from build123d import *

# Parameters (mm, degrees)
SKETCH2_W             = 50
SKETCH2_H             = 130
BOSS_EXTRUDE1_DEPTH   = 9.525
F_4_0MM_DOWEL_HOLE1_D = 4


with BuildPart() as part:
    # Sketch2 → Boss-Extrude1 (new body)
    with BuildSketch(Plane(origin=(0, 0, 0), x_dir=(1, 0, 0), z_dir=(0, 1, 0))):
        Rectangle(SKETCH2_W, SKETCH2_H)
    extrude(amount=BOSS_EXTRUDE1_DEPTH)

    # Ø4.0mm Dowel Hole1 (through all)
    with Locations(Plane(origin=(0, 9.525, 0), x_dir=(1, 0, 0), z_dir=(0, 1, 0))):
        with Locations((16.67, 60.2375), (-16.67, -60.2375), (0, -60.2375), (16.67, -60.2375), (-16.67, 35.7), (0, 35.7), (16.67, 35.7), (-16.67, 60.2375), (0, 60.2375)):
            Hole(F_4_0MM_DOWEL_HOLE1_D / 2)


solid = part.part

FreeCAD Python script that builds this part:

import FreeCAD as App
import Part
import Sketcher
from FreeCAD import Vector
Q = App.Units.Quantity


def add_polygon(sketch, points):
    """Adds a closed chain of lines whose ends are joined by coincident constraints."""
    first, n = sketch.GeometryCount, len(points)
    for a, b in zip(points, points[1:] + points[:1]):
        sketch.addGeometry(Part.LineSegment(App.Vector(*a, 0), App.Vector(*b, 0)), False)
    for i in range(n):
        sketch.addConstraint(Sketcher.Constraint("Coincident", first + i, 2, first + (i + 1) % n, 1))

doc = App.newDocument("Part")
body = doc.addObject("PartDesign::Body", "Body")

sketch1 = body.newObject("Sketcher::SketchObject", "Sketch")
sketch1.AttachmentSupport = (doc.getObject("XZ_Plane"), [""])
sketch1.MapMode = "FlatFace"
add_polygon(sketch1, [(-25, -65), (-25, 65), (25, 65), (25, -65)])
sketch1.addConstraint(Sketcher.Constraint("Vertical", 0))
sketch1.addConstraint(Sketcher.Constraint("Horizontal", 1))
sketch1.addConstraint(Sketcher.Constraint("Vertical", 2))
sketch1.addConstraint(Sketcher.Constraint("Horizontal", 3))
sketch1.addConstraint(Sketcher.Constraint("Symmetric", 0, 2, 2, 2, -1, 1))
sketch1.addConstraint(Sketcher.Constraint("DistanceX", 1, 1, 1, 2, Q("50 mm")))
sketch1.addConstraint(Sketcher.Constraint("DistanceY", 0, 1, 0, 2, Q("130 mm")))
pad1 = body.newObject("PartDesign::Pad", "Pad")
pad1.Profile = sketch1
pad1.Length = 9.525
pad1.Reversed = True

sketch2 = body.newObject("Sketcher::SketchObject", "Sketch001")
sketch2.AttachmentSupport = (doc.getObject("XZ_Plane"), [""])
sketch2.MapMode = "FlatFace"
sketch2.AttachmentOffset = App.Placement(Vector(0, 0, -9.525), App.Rotation())
sketch2.addGeometry(Part.Circle(Vector(16.7, -60.2, 0), Vector(0, 0, 1), 2), False)
sketch2.addGeometry(Part.Circle(Vector(-16.7, 60.2, 0), Vector(0, 0, 1), 2), False)
sketch2.addGeometry(Part.Circle(Vector(0, 60.2, 0), Vector(0, 0, 1), 2), False)
sketch2.addGeometry(Part.Circle(Vector(16.7, 60.2, 0), Vector(0, 0, 1), 2), False)
sketch2.addGeometry(Part.Circle(Vector(-16.7, -35.7, 0), Vector(0, 0, 1), 2), False)
sketch2.addGeometry(Part.Circle(Vector(0, -35.7, 0), Vector(0, 0, 1), 2), False)
sketch2.addGeometry(Part.Circle(Vector(16.7, -35.7, 0), Vector(0, 0, 1), 2), False)
sketch2.addGeometry(Part.Circle(Vector(-16.7, -60.2, 0), Vector(0, 0, 1), 2), False)
sketch2.addGeometry(Part.Circle(Vector(0, -60.2, 0), Vector(0, 0, 1), 2), False)
sketch2.addConstraint(Sketcher.Constraint("Equal", 0, 1))
sketch2.addConstraint(Sketcher.Constraint("Equal", 1, 2))
sketch2.addConstraint(Sketcher.Constraint("Equal", 2, 3))
sketch2.addConstraint(Sketcher.Constraint("Equal", 3, 4))
sketch2.addConstraint(Sketcher.Constraint("Equal", 4, 5))
sketch2.addConstraint(Sketcher.Constraint("Equal", 5, 6))
sketch2.addConstraint(Sketcher.Constraint("Equal", 6, 7))
sketch2.addConstraint(Sketcher.Constraint("Equal", 7, 8))
sketch2.addConstraint(Sketcher.Constraint("Symmetric", 0, 3, 1, 3, -1, 1))
sketch2.addConstraint(Sketcher.Constraint("Symmetric", 3, 3, 7, 3, -1, 1))
sketch2.addConstraint(Sketcher.Constraint("Symmetric", 2, 3, 8, 3, -1, 1))
sketch2.addConstraint(Sketcher.Constraint("Symmetric", 1, 3, 3, 3, -2))
sketch2.addConstraint(Sketcher.Constraint("Symmetric", 4, 3, 6, 3, -2))
sketch2.addConstraint(Sketcher.Constraint("PointOnObject", 2, 3, -2))
sketch2.addConstraint(Sketcher.Constraint("PointOnObject", 5, 3, -2))
sketch2.addConstraint(Sketcher.Constraint("Horizontal", 1, 3, 2, 3))
sketch2.addConstraint(Sketcher.Constraint("Horizontal", 4, 3, 5, 3))
sketch2.addConstraint(Sketcher.Constraint("Vertical", 1, 3, 4, 3))
sketch2.addConstraint(Sketcher.Constraint("Diameter", 0, Q("4 mm")))
sketch2.addConstraint(Sketcher.Constraint("DistanceY", 4, 3, -1, 1, Q("35.7 mm")))
sketch2.addConstraint(Sketcher.Constraint("DistanceX", -1, 1, 0, 3, Q("16.67 mm")))
sketch2.addConstraint(Sketcher.Constraint("DistanceY", 0, 3, 1, 3, Q("120.475 mm")))
doc.recompute()
hole = body.newObject("PartDesign::Hole", "Hole")
hole.Profile = sketch2
hole.ThreadType = "None"
hole.Diameter = 4
hole.DepthType = "ThroughAll"
hole.Reversed = True

doc.recompute()
